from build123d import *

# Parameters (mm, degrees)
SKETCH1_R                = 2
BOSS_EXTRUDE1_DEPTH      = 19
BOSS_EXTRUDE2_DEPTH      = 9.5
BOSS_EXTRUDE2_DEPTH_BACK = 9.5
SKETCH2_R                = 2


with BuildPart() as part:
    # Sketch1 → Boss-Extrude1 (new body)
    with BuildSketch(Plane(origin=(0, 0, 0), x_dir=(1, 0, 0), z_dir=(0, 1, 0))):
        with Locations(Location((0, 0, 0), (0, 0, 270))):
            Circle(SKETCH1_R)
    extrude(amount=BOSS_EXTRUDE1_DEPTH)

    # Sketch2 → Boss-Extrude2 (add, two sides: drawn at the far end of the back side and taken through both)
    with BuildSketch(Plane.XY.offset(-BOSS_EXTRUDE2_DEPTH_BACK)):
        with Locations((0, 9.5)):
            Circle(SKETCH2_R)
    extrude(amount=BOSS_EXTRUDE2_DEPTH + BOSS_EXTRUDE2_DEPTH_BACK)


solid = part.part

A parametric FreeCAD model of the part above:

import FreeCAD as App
import Part
import Sketcher

V = App.Vector
Q = App.Units.Quantity

doc = App.newDocument("Part")
body = doc.addObject("PartDesign::Body", "Body")

# Sketch on XZ plane
sketch1 = doc.addObject("Sketcher::SketchObject", "Sketch")
body.addObject(sketch1)
sketch1.AttachmentSupport = (doc.XZ_Plane, [""])
sketch1.MapMode = "FlatFace"
sketch1.addGeometry(Part.Circle(V(0, 0, 0), V(0, 0, 1), 2), False)
sketch1.addConstraint([
    Sketcher.Constraint("Coincident", 0, 3, -1, 1),
    Sketcher.Constraint("Diameter", 0, Q("4 mm")),
])
pad1 = doc.addObject("PartDesign::Pad", "Pad")
body.addObject(pad1)
pad1.Profile = sketch1
pad1.Length = 19
pad1.Reversed = True

# Sketch on XY plane
sketch2 = doc.addObject("Sketcher::SketchObject", "Sketch001")
body.addObject(sketch2)
sketch2.AttachmentSupport = (doc.XY_Plane, [""])
sketch2.MapMode = "FlatFace"
sketch2.addGeometry(Part.Circle(V(0, 9.5, 0), V(0, 0, 1), 2), False)
sketch2.addConstraint([
    Sketcher.Constraint("PointOnObject", 0, 3, -2),
    Sketcher.Constraint("Diameter", 0, Q("4 mm")),
    Sketcher.Constraint("DistanceY", -1, 1, 0, 3, Q("9.5 mm")),
])
pad2 = doc.addObject("PartDesign::Pad", "Pad001")
body.addObject(pad2)
pad2.Profile = sketch2
pad2.Type = "TwoLengths"
pad2.Length = 9.5
pad2.Length2 = 9.5

doc.recompute()
